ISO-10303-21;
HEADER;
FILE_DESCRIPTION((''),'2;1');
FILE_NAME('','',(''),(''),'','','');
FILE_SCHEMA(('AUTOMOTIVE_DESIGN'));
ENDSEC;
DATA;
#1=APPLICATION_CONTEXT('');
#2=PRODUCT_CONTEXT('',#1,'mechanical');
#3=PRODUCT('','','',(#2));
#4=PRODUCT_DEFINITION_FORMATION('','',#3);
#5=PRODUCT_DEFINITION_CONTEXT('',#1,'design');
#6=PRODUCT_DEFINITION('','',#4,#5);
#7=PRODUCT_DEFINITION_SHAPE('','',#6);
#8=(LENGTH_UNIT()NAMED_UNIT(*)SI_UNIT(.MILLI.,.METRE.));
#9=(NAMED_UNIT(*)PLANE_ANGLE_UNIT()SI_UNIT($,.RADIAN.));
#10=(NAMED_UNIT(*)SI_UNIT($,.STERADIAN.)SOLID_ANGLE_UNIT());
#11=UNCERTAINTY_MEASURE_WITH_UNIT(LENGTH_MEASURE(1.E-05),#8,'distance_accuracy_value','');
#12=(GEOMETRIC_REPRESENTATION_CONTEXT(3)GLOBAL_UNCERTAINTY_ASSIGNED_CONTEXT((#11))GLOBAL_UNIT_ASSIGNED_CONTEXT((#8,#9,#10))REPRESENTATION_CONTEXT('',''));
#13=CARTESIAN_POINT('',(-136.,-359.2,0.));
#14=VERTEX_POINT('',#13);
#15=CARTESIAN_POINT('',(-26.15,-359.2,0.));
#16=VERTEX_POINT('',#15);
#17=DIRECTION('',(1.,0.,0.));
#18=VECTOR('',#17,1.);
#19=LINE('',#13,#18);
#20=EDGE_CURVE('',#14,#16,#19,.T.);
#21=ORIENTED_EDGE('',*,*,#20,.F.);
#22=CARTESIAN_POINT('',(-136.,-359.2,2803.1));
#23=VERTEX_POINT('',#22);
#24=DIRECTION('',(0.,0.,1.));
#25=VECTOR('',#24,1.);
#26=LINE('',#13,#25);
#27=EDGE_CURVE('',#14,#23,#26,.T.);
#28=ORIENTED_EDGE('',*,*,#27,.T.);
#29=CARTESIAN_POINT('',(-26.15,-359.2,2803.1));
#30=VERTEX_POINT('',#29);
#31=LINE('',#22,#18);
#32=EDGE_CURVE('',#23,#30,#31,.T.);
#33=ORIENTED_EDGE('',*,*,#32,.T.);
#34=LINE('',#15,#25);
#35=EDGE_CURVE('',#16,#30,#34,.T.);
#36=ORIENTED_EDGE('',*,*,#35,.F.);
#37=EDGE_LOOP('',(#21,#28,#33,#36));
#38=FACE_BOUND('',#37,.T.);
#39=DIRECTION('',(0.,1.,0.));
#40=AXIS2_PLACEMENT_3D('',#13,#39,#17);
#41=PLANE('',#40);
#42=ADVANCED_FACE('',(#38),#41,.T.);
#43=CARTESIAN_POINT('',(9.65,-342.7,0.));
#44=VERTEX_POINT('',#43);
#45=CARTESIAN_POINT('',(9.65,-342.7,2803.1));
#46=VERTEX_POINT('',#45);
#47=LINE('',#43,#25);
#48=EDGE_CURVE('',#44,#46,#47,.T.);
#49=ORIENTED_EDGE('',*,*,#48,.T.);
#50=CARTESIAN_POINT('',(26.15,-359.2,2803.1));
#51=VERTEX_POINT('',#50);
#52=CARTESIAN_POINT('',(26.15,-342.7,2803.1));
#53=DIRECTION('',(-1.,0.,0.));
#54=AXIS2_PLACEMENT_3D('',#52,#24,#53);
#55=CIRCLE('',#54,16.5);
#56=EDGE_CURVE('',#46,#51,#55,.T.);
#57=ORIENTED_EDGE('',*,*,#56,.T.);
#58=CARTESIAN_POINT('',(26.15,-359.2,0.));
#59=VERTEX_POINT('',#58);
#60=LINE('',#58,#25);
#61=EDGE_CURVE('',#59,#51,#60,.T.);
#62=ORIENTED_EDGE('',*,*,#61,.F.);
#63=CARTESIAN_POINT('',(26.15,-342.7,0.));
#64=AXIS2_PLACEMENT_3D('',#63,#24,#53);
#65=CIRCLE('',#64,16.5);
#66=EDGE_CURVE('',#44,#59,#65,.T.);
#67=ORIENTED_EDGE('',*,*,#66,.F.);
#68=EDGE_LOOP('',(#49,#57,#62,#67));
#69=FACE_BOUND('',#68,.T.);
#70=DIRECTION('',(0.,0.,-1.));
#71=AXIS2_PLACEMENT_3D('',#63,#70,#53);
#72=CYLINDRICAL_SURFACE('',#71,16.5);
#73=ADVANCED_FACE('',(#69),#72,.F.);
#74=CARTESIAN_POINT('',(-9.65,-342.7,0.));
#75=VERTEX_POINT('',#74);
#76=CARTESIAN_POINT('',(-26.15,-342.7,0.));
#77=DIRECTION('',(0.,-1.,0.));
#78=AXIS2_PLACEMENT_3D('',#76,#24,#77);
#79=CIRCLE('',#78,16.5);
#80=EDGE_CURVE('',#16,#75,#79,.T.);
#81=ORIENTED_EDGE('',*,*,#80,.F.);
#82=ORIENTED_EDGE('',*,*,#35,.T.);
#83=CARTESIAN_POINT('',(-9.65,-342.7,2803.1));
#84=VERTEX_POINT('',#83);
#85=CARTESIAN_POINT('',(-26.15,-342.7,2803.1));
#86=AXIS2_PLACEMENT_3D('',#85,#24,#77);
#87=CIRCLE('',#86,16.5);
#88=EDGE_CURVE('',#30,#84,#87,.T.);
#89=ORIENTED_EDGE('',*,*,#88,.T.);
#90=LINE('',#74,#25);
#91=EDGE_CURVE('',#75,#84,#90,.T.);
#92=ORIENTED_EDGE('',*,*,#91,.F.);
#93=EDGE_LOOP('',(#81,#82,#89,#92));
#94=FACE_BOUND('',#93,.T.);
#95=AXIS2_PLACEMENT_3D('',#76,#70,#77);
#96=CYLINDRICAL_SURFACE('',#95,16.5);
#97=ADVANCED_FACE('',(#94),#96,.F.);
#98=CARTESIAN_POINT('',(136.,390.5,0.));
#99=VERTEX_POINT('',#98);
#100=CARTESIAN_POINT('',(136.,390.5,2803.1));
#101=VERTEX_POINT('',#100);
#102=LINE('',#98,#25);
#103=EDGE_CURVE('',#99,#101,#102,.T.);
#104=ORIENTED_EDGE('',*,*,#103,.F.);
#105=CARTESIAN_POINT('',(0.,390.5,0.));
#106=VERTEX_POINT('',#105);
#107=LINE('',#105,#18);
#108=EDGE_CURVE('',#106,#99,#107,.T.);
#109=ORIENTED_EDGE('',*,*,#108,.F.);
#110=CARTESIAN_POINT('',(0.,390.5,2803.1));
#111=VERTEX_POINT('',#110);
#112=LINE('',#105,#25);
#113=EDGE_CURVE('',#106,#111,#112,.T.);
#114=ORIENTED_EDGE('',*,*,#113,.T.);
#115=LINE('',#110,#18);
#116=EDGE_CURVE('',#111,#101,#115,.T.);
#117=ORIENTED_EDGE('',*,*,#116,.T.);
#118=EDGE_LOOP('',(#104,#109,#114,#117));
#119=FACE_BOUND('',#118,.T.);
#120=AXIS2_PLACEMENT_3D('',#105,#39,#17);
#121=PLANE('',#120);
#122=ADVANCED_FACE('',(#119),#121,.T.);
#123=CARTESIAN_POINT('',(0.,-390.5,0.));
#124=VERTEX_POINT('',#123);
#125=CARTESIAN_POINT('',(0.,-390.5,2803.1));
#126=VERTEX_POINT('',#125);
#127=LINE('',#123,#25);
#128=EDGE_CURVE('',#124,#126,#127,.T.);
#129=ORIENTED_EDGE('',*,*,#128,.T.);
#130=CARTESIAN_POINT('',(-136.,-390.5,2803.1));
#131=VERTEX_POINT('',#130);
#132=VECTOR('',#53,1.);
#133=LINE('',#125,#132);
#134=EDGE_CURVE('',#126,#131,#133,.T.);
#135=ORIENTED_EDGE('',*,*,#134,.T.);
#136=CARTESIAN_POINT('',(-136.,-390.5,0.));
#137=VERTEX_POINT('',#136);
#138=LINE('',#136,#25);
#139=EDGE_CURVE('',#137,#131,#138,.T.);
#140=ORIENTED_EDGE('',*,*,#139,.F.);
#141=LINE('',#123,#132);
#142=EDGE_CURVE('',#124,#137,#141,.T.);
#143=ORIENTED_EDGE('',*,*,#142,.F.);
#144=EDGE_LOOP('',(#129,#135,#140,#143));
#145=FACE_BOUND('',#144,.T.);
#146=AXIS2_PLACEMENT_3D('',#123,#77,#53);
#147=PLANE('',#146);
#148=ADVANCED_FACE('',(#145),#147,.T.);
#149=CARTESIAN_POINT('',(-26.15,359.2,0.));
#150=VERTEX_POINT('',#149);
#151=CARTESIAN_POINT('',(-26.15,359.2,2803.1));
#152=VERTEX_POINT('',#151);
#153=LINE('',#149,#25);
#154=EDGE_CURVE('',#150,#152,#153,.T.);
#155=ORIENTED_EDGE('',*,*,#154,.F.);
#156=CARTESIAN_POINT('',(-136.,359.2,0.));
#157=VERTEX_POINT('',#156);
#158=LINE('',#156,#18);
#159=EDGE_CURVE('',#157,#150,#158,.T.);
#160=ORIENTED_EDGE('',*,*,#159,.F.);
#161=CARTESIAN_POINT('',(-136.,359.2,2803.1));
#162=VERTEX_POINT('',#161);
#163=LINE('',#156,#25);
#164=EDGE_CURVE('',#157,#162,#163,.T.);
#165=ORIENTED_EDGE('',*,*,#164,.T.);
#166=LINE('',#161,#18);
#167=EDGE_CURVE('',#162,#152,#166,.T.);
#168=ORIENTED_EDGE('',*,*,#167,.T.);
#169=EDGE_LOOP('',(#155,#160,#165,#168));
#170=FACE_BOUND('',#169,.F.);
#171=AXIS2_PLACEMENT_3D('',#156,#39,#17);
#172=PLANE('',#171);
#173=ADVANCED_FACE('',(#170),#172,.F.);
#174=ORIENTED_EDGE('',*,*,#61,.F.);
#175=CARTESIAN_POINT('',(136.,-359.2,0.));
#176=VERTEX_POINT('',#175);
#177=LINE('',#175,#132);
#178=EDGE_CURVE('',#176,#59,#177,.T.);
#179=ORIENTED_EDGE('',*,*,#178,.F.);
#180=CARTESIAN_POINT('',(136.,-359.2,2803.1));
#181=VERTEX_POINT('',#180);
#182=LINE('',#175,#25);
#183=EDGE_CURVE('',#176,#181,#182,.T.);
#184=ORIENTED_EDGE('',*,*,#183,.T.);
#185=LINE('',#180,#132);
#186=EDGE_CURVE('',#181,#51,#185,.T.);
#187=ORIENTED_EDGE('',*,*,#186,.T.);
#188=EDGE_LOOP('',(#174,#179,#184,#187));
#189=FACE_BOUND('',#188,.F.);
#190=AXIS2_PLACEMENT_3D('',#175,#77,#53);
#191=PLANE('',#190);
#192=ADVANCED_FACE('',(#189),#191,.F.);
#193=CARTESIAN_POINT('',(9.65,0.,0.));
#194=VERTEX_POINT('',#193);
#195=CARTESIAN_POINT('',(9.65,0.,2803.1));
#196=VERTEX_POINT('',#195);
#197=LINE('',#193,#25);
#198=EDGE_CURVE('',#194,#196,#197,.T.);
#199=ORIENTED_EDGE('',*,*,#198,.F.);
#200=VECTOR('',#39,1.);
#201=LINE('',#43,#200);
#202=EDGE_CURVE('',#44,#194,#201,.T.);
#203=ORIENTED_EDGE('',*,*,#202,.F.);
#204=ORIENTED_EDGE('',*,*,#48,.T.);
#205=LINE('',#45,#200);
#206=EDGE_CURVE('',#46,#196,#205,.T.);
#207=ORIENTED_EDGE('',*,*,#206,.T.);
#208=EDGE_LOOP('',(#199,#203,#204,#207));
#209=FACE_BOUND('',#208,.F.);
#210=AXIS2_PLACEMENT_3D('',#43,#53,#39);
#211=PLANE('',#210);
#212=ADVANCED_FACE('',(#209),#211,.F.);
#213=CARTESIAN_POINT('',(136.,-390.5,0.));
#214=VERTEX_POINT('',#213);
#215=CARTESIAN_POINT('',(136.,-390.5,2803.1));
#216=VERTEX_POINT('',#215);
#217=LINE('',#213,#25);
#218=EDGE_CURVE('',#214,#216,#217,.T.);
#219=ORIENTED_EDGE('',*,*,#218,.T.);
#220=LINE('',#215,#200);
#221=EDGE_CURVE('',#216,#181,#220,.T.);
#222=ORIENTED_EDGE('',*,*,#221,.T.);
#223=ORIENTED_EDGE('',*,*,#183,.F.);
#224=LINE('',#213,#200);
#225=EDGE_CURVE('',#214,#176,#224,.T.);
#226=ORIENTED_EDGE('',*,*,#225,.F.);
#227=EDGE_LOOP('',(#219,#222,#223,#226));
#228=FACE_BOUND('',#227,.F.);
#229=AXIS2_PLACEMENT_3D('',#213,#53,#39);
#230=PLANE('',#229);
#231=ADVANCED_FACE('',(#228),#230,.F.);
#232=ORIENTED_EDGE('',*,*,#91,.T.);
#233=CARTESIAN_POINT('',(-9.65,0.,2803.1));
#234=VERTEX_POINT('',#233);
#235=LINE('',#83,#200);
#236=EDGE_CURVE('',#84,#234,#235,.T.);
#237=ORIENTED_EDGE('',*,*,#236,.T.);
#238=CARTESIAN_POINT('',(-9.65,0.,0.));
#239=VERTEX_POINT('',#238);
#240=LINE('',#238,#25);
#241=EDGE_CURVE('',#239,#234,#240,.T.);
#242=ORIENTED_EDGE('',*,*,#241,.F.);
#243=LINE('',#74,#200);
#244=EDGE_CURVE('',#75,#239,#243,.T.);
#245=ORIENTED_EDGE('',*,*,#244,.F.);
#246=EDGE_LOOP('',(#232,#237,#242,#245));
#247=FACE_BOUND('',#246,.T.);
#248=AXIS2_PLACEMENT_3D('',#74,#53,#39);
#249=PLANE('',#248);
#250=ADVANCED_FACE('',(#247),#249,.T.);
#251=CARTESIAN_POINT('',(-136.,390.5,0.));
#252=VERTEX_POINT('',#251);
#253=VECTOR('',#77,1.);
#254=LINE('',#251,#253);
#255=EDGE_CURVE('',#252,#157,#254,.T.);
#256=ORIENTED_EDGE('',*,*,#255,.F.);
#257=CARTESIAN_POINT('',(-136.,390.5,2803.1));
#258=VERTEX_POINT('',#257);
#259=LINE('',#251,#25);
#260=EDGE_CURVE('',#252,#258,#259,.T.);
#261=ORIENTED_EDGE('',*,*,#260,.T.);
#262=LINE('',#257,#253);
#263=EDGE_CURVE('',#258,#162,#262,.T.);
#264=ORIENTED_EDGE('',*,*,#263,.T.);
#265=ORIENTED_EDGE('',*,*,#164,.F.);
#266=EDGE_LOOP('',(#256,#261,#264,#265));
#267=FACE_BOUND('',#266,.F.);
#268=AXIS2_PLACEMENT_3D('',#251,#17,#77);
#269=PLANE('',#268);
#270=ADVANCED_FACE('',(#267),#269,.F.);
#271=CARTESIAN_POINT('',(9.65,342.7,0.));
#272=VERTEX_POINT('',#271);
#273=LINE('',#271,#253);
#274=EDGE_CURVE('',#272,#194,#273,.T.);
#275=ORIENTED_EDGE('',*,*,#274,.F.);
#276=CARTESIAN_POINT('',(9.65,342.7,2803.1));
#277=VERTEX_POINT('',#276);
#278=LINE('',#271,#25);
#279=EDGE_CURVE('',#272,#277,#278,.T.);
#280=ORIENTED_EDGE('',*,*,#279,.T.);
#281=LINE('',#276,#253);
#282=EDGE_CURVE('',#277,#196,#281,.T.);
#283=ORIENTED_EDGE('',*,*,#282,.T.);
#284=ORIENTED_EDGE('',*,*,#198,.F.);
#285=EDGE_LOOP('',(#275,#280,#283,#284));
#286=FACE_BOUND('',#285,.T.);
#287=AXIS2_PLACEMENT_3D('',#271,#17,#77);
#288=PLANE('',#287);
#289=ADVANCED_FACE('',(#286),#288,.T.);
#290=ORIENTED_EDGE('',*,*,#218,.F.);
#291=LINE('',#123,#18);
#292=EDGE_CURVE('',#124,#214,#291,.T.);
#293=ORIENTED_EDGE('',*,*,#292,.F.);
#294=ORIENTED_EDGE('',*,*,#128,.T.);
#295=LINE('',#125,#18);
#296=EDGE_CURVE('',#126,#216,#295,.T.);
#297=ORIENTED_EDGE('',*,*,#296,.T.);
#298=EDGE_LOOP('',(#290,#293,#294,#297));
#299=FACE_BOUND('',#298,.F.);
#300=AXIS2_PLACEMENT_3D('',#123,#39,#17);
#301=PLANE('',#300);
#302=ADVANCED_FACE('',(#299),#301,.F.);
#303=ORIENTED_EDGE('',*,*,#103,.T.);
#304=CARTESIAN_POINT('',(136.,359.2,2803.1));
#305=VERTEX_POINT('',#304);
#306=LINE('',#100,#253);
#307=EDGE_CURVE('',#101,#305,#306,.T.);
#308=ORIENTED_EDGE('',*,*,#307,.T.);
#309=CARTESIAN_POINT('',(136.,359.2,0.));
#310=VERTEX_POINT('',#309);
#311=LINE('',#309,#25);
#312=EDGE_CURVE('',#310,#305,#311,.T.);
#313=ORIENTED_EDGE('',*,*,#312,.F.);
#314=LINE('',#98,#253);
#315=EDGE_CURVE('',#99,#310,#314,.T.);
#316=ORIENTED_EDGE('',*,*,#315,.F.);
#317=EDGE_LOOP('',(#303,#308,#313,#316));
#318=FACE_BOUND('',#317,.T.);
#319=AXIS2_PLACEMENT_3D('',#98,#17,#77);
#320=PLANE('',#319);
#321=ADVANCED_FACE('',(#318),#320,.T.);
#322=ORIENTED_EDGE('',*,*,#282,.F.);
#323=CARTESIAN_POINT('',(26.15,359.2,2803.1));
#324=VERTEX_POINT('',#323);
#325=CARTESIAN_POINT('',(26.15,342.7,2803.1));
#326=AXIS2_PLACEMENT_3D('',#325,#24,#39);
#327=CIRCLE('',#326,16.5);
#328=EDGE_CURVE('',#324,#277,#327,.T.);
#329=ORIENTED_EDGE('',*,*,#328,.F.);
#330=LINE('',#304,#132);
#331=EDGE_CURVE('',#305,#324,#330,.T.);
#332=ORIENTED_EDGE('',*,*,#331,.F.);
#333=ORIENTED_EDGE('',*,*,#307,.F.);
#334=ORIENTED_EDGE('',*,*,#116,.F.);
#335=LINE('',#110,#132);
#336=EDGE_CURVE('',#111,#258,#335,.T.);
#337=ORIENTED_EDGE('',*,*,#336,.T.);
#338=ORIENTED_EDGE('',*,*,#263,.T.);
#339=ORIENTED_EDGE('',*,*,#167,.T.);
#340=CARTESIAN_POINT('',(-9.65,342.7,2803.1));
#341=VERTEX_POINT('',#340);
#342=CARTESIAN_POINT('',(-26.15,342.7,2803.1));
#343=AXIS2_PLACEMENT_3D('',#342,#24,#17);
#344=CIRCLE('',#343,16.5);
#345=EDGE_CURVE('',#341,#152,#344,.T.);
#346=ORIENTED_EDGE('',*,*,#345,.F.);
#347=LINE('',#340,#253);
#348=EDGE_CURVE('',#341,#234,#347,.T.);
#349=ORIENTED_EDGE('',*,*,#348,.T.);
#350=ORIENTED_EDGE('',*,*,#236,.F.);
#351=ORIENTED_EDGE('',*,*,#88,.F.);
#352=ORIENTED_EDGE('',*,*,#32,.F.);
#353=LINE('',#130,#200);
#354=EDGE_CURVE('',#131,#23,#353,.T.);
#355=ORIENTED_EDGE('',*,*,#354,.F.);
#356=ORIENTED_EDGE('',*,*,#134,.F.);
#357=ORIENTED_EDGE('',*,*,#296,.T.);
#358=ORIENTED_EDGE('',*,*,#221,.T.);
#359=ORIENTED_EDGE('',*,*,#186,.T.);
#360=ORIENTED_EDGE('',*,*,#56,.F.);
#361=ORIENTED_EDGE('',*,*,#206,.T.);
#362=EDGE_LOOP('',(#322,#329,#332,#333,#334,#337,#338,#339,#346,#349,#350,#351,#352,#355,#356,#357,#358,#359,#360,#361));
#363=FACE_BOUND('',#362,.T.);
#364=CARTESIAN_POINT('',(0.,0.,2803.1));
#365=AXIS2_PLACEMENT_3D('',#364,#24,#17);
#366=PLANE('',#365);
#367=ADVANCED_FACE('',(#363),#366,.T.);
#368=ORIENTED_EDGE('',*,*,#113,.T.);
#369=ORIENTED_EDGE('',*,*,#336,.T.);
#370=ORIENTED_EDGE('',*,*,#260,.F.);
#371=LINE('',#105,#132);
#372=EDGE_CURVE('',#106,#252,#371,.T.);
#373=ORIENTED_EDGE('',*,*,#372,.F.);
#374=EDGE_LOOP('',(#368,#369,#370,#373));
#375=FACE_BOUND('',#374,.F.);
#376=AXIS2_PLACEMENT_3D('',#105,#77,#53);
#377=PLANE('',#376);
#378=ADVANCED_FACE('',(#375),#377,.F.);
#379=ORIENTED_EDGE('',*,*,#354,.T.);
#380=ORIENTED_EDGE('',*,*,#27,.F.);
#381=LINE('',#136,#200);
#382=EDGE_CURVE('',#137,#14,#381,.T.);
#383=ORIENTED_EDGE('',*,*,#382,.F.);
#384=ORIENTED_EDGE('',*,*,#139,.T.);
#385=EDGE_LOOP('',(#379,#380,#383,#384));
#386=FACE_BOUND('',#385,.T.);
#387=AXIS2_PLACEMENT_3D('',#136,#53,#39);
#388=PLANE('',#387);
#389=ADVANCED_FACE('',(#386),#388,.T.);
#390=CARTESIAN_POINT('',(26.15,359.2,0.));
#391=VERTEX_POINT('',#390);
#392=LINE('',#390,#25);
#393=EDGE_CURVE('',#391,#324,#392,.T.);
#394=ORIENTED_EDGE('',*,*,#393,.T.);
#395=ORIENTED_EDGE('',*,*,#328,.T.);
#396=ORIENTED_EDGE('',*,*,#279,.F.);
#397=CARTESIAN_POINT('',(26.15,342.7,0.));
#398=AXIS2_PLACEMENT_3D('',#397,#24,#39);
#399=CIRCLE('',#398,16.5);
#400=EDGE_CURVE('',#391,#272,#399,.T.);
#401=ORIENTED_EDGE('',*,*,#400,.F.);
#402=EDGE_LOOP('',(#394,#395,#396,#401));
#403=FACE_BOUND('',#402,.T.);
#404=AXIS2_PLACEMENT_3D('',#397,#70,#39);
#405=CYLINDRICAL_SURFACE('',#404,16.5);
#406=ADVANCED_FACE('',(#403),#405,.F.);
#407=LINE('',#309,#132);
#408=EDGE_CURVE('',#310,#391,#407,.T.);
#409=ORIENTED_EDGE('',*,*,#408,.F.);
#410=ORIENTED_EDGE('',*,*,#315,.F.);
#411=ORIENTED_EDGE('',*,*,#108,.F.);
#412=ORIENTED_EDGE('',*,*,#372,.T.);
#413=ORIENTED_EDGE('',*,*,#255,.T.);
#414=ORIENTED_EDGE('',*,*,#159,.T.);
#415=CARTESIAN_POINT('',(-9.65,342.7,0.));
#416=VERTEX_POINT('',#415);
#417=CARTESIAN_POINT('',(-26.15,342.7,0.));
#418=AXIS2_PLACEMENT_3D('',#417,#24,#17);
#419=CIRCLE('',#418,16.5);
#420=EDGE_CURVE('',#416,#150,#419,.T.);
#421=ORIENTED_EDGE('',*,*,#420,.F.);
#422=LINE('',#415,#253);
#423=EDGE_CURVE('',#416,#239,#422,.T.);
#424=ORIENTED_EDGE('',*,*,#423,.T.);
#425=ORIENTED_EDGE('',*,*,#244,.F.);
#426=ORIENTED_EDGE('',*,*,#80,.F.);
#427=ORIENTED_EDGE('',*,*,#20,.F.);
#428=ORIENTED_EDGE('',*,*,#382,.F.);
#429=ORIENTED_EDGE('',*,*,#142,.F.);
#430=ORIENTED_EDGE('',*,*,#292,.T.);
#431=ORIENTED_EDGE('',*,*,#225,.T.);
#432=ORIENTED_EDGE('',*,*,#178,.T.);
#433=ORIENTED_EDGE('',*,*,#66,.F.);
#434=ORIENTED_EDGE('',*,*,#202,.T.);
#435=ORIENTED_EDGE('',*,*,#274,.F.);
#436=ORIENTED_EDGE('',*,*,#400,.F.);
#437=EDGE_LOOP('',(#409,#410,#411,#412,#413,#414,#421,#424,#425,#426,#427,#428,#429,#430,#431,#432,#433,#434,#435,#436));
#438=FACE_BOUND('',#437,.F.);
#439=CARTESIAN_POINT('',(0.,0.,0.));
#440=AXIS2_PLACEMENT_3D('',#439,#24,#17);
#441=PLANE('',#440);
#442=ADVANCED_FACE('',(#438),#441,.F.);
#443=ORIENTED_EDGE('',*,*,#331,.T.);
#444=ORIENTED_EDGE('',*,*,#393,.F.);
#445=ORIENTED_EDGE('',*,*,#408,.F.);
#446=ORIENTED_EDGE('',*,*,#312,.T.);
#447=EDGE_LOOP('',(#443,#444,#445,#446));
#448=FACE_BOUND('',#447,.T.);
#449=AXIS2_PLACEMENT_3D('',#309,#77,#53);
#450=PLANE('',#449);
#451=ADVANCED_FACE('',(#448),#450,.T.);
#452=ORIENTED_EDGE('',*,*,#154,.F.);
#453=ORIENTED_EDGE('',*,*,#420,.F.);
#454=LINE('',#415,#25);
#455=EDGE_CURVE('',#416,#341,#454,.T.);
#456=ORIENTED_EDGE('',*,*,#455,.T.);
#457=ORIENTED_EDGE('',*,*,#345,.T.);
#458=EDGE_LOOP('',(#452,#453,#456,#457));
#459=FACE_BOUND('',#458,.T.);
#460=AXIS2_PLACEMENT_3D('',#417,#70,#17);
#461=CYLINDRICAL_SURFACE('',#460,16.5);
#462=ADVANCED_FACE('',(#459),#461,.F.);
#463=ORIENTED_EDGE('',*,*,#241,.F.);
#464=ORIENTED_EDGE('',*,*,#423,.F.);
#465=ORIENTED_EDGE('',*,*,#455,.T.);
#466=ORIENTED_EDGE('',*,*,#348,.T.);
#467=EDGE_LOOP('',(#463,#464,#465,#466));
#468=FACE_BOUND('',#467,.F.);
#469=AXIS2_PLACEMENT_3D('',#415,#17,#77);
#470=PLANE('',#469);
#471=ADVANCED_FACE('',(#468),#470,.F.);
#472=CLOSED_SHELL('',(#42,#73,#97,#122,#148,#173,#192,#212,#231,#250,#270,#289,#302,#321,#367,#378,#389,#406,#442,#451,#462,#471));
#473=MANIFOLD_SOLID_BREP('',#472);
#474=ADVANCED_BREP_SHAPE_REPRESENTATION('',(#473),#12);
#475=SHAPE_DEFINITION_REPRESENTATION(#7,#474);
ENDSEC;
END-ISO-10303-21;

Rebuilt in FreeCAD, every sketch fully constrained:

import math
import FreeCAD as App
import Part
import Sketcher

V = App.Vector

doc = App.newDocument("Part")
body = doc.addObject("PartDesign::Body", "Body")

sketch1 = doc.addObject("Sketcher::SketchObject", "Sketch")
body.addObject(sketch1)
sketch1.AttachmentSupport = (doc.XY_Plane, [""])
sketch1.MapMode = "FlatFace"
sketch1.addGeometry([
    Part.LineSegment(V(-136, -359, 0), V(-136, -390, 0)),
    Part.LineSegment(V(-136, -390, 0), V(136, -390, 0)),
    Part.LineSegment(V(136, -390, 0), V(136, -359, 0)),
    Part.LineSegment(V(136, -359, 0), V(26, -359, 0)),
    Part.ArcOfCircle(Part.Circle(V(26, -343, 0), V(0, 0, 1), 16), math.radians(180), math.radians(270)),
    Part.LineSegment(V(10, -343, 0), V(10, 343, 0)),
    Part.ArcOfCircle(Part.Circle(V(26, 343, 0), V(0, 0, 1), 16), math.radians(90), math.radians(180)),
    Part.LineSegment(V(26, 359, 0), V(136, 359, 0)),
    Part.LineSegment(V(136, 359, 0), V(136, 390, 0)),
    Part.LineSegment(V(136, 390, 0), V(-136, 390, 0)),
    Part.LineSegment(V(-136, 390, 0), V(-136, 359, 0)),
    Part.LineSegment(V(-136, 359, 0), V(-26, 359, 0)),
    Part.ArcOfCircle(Part.Circle(V(-26, 343, 0), V(0, 0, 1), 16), math.radians(0), math.radians(90)),
    Part.LineSegment(V(-10, 343, 0), V(-10, -343, 0)),
    Part.ArcOfCircle(Part.Circle(V(-26, -343, 0), V(0, 0, 1), 16), math.radians(-90), math.radians(0)),
    Part.LineSegment(V(-26, -359, 0), V(-136, -359, 0)),
], False)
sketch1.addConstraint([
    Sketcher.Constraint("Coincident", 0, 2, 1, 1),
    Sketcher.Constraint("Coincident", 1, 2, 2, 1),
    Sketcher.Constraint("Coincident", 2, 2, 3, 1),
    Sketcher.Constraint("Tangent", 3, 2, 4, 2),
    Sketcher.Constraint("Tangent", 4, 1, 5, 1),
    Sketcher.Constraint("Tangent", 5, 2, 6, 2),
    Sketcher.Constraint("Tangent", 6, 1, 7, 1),
    Sketcher.Constraint("Coincident", 7, 2, 8, 1),
    Sketcher.Constraint("Coincident", 8, 2, 9, 1),
    Sketcher.Constraint("Coincident", 9, 2, 10, 1),
    Sketcher.Constraint("Coincident", 10, 2, 11, 1),
    Sketcher.Constraint("Tangent", 11, 2, 12, 2),
    Sketcher.Constraint("Tangent", 12, 1, 13, 1),
    Sketcher.Constraint("Tangent", 13, 2, 14, 2),
    Sketcher.Constraint("Tangent", 14, 1, 15, 1),
    Sketcher.Constraint("Coincident", 15, 2, 0, 1),
    Sketcher.Constraint("Vertical", 0),
    Sketcher.Constraint("Horizontal", 1),
    Sketcher.Constraint("Vertical", 2),
    Sketcher.Constraint("Horizontal", 3),
    Sketcher.Constraint("Vertical", 5),
    Sketcher.Constraint("Horizontal", 7),
    Sketcher.Constraint("Vertical", 8),
    Sketcher.Constraint("Horizontal", 9),
    Sketcher.Constraint("Vertical", 10),
    Sketcher.Constraint("Horizontal", 11),
    Sketcher.Constraint("Vertical", 13),
    Sketcher.Constraint("Horizontal", 15),
    Sketcher.Constraint("Equal", 4, 6),
    Sketcher.Constraint("Equal", 6, 12),
    Sketcher.Constraint("Equal", 12, 14),
    Sketcher.Constraint("Symmetric", 4, 3, 12, 3, -1, 1),
    Sketcher.Constraint("Symmetric", 0, 2, 8, 2, -1, 1),
    Sketcher.Constraint("Symmetric", 7, 2, 10, 2, -2),
    Sketcher.Constraint("Symmetric", 2, 2, 15, 2, -2),
    Sketcher.Constraint("Radius", 4, 16.5),
    Sketcher.Constraint("DistanceY", 0, 2, 0, 1, 31.3),
    Sketcher.Constraint("DistanceX", 0, 2, -1, 1, 136.0),
    Sketcher.Constraint("DistanceY", 0, 2, -1, 1, 390.5),
    Sketcher.Constraint("DistanceX", -1, 1, 4, 1, 9.65),
])
pad1 = doc.addObject("PartDesign::Pad", "Pad")
body.addObject(pad1)
pad1.Profile = sketch1
pad1.Length = 2803.1

doc.recompute()
